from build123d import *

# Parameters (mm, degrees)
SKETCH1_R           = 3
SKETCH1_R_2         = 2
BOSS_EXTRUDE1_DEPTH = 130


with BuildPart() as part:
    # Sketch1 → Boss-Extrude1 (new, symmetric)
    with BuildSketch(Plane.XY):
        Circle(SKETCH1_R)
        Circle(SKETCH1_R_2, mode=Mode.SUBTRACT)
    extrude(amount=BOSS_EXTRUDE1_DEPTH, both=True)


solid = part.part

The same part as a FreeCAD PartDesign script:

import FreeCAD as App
import Part
import Sketcher
from FreeCAD import Vector

doc = App.newDocument("Part")
body = doc.addObject("PartDesign::Body", "Body")

# Sketch on XY plane
sketch1 = body.newObject("Sketcher::SketchObject", "Sketch")
sketch1.AttachmentSupport = (doc.getObject("XY_Plane"), [""])
sketch1.MapMode = "FlatFace"
sketch1.addGeometry([
    Part.Circle(Vector(0, 0, 0), Vector(0, 0, 1), 3),
    Part.Circle(Vector(0, 0, 0), Vector(0, 0, 1), 2),
], False)
sketch1.addConstraint([
    Sketcher.Constraint("Coincident", 0, 3, -1, 1),
    Sketcher.Constraint("Coincident", 1, 3, -1, 1),
    Sketcher.Constraint("Diameter", 0, 6.0),
    Sketcher.Constraint("Diameter", 1, 4.0),
])
pad1 = body.newObject("PartDesign::Pad", "Pad")
pad1.Profile = sketch1
pad1.Length = 260
pad1.Midplane = True

doc.recompute()
